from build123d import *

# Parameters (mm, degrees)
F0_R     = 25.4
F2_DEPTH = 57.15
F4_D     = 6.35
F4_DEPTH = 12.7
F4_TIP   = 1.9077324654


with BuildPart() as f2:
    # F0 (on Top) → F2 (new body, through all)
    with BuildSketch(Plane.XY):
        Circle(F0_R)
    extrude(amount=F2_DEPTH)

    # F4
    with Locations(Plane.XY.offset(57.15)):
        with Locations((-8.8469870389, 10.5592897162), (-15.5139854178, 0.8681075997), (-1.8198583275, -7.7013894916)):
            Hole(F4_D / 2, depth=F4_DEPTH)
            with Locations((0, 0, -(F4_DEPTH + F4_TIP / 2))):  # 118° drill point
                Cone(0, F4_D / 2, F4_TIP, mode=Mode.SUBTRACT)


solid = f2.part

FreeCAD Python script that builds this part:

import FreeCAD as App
import Part
import Sketcher

V = App.Vector
Q = App.Units.Quantity

doc = App.newDocument("Part")
body = doc.addObject("PartDesign::Body", "Body")

# Sketch on XY plane
sketch1 = body.newObject("Sketcher::SketchObject", "Sketch")
sketch1.AttachmentSupport = (doc.getObject("XY_Plane"), [""])
sketch1.MapMode = "FlatFace"
sketch1.addGeometry(Part.Circle(V(0, 0, 0), V(0, 0, 1), 25), False)
sketch1.addConstraint([
    Sketcher.Constraint("Coincident", 0, 3, -1, 1),
    Sketcher.Constraint("Diameter", 0, Q("2 in")),
])
pad1 = body.newObject("PartDesign::Pad", "Pad")
pad1.Profile = sketch1
pad1.Length = Q("2.25 in")

# Sketch on XY plane
sketch2 = body.newObject("Sketcher::SketchObject", "Sketch001")
sketch2.AttachmentSupport = (doc.getObject("XY_Plane"), [""])
sketch2.MapMode = "FlatFace"
sketch2.AttachmentOffset = App.Placement(V(0, 0, 2.25 * 25.4), App.Rotation())
sketch2.addGeometry([
    Part.Circle(V(-8.8, 10.6, 0), V(0, 0, 1), 3.2),
    Part.Circle(V(-15.5, 0.9, 0), V(0, 0, 1), 3.2),
    Part.Circle(V(-1.8, -7.7, 0), V(0, 0, 1), 3.2),
], False)
sketch2.addConstraint([
    Sketcher.Constraint("Equal", 0, 1),
    Sketcher.Constraint("Equal", 1, 2),
    Sketcher.Constraint("Diameter", 0, Q("0.25 in")),
    Sketcher.Constraint("DistanceX", 1, 3, 0, 3, Q("6.666998 mm")),
    Sketcher.Constraint("DistanceY", -1, 1, 0, 3, Q("10.55929 mm")),
    Sketcher.Constraint("DistanceX", 2, 3, -1, 1, Q("1.819858 mm")),
    Sketcher.Constraint("DistanceY", 2, 3, -1, 1, Q("7.701389 mm")),
    Sketcher.Constraint("DistanceX", 0, 3, 2, 3, Q("7.027129 mm")),
    Sketcher.Constraint("DistanceY", -1, 1, 1, 3, Q("0.868108 mm")),
])
doc.recompute()
hole = body.newObject("PartDesign::Hole", "Hole")
hole.Profile = sketch2
hole.ThreadType = "None"
hole.Diameter = Q("0.25 in")
hole.DepthType = "Dimension"
hole.Depth = Q("0.5 in")
hole.DrillPoint = "Angled"
hole.DrillPointAngle = 118

doc.recompute()
